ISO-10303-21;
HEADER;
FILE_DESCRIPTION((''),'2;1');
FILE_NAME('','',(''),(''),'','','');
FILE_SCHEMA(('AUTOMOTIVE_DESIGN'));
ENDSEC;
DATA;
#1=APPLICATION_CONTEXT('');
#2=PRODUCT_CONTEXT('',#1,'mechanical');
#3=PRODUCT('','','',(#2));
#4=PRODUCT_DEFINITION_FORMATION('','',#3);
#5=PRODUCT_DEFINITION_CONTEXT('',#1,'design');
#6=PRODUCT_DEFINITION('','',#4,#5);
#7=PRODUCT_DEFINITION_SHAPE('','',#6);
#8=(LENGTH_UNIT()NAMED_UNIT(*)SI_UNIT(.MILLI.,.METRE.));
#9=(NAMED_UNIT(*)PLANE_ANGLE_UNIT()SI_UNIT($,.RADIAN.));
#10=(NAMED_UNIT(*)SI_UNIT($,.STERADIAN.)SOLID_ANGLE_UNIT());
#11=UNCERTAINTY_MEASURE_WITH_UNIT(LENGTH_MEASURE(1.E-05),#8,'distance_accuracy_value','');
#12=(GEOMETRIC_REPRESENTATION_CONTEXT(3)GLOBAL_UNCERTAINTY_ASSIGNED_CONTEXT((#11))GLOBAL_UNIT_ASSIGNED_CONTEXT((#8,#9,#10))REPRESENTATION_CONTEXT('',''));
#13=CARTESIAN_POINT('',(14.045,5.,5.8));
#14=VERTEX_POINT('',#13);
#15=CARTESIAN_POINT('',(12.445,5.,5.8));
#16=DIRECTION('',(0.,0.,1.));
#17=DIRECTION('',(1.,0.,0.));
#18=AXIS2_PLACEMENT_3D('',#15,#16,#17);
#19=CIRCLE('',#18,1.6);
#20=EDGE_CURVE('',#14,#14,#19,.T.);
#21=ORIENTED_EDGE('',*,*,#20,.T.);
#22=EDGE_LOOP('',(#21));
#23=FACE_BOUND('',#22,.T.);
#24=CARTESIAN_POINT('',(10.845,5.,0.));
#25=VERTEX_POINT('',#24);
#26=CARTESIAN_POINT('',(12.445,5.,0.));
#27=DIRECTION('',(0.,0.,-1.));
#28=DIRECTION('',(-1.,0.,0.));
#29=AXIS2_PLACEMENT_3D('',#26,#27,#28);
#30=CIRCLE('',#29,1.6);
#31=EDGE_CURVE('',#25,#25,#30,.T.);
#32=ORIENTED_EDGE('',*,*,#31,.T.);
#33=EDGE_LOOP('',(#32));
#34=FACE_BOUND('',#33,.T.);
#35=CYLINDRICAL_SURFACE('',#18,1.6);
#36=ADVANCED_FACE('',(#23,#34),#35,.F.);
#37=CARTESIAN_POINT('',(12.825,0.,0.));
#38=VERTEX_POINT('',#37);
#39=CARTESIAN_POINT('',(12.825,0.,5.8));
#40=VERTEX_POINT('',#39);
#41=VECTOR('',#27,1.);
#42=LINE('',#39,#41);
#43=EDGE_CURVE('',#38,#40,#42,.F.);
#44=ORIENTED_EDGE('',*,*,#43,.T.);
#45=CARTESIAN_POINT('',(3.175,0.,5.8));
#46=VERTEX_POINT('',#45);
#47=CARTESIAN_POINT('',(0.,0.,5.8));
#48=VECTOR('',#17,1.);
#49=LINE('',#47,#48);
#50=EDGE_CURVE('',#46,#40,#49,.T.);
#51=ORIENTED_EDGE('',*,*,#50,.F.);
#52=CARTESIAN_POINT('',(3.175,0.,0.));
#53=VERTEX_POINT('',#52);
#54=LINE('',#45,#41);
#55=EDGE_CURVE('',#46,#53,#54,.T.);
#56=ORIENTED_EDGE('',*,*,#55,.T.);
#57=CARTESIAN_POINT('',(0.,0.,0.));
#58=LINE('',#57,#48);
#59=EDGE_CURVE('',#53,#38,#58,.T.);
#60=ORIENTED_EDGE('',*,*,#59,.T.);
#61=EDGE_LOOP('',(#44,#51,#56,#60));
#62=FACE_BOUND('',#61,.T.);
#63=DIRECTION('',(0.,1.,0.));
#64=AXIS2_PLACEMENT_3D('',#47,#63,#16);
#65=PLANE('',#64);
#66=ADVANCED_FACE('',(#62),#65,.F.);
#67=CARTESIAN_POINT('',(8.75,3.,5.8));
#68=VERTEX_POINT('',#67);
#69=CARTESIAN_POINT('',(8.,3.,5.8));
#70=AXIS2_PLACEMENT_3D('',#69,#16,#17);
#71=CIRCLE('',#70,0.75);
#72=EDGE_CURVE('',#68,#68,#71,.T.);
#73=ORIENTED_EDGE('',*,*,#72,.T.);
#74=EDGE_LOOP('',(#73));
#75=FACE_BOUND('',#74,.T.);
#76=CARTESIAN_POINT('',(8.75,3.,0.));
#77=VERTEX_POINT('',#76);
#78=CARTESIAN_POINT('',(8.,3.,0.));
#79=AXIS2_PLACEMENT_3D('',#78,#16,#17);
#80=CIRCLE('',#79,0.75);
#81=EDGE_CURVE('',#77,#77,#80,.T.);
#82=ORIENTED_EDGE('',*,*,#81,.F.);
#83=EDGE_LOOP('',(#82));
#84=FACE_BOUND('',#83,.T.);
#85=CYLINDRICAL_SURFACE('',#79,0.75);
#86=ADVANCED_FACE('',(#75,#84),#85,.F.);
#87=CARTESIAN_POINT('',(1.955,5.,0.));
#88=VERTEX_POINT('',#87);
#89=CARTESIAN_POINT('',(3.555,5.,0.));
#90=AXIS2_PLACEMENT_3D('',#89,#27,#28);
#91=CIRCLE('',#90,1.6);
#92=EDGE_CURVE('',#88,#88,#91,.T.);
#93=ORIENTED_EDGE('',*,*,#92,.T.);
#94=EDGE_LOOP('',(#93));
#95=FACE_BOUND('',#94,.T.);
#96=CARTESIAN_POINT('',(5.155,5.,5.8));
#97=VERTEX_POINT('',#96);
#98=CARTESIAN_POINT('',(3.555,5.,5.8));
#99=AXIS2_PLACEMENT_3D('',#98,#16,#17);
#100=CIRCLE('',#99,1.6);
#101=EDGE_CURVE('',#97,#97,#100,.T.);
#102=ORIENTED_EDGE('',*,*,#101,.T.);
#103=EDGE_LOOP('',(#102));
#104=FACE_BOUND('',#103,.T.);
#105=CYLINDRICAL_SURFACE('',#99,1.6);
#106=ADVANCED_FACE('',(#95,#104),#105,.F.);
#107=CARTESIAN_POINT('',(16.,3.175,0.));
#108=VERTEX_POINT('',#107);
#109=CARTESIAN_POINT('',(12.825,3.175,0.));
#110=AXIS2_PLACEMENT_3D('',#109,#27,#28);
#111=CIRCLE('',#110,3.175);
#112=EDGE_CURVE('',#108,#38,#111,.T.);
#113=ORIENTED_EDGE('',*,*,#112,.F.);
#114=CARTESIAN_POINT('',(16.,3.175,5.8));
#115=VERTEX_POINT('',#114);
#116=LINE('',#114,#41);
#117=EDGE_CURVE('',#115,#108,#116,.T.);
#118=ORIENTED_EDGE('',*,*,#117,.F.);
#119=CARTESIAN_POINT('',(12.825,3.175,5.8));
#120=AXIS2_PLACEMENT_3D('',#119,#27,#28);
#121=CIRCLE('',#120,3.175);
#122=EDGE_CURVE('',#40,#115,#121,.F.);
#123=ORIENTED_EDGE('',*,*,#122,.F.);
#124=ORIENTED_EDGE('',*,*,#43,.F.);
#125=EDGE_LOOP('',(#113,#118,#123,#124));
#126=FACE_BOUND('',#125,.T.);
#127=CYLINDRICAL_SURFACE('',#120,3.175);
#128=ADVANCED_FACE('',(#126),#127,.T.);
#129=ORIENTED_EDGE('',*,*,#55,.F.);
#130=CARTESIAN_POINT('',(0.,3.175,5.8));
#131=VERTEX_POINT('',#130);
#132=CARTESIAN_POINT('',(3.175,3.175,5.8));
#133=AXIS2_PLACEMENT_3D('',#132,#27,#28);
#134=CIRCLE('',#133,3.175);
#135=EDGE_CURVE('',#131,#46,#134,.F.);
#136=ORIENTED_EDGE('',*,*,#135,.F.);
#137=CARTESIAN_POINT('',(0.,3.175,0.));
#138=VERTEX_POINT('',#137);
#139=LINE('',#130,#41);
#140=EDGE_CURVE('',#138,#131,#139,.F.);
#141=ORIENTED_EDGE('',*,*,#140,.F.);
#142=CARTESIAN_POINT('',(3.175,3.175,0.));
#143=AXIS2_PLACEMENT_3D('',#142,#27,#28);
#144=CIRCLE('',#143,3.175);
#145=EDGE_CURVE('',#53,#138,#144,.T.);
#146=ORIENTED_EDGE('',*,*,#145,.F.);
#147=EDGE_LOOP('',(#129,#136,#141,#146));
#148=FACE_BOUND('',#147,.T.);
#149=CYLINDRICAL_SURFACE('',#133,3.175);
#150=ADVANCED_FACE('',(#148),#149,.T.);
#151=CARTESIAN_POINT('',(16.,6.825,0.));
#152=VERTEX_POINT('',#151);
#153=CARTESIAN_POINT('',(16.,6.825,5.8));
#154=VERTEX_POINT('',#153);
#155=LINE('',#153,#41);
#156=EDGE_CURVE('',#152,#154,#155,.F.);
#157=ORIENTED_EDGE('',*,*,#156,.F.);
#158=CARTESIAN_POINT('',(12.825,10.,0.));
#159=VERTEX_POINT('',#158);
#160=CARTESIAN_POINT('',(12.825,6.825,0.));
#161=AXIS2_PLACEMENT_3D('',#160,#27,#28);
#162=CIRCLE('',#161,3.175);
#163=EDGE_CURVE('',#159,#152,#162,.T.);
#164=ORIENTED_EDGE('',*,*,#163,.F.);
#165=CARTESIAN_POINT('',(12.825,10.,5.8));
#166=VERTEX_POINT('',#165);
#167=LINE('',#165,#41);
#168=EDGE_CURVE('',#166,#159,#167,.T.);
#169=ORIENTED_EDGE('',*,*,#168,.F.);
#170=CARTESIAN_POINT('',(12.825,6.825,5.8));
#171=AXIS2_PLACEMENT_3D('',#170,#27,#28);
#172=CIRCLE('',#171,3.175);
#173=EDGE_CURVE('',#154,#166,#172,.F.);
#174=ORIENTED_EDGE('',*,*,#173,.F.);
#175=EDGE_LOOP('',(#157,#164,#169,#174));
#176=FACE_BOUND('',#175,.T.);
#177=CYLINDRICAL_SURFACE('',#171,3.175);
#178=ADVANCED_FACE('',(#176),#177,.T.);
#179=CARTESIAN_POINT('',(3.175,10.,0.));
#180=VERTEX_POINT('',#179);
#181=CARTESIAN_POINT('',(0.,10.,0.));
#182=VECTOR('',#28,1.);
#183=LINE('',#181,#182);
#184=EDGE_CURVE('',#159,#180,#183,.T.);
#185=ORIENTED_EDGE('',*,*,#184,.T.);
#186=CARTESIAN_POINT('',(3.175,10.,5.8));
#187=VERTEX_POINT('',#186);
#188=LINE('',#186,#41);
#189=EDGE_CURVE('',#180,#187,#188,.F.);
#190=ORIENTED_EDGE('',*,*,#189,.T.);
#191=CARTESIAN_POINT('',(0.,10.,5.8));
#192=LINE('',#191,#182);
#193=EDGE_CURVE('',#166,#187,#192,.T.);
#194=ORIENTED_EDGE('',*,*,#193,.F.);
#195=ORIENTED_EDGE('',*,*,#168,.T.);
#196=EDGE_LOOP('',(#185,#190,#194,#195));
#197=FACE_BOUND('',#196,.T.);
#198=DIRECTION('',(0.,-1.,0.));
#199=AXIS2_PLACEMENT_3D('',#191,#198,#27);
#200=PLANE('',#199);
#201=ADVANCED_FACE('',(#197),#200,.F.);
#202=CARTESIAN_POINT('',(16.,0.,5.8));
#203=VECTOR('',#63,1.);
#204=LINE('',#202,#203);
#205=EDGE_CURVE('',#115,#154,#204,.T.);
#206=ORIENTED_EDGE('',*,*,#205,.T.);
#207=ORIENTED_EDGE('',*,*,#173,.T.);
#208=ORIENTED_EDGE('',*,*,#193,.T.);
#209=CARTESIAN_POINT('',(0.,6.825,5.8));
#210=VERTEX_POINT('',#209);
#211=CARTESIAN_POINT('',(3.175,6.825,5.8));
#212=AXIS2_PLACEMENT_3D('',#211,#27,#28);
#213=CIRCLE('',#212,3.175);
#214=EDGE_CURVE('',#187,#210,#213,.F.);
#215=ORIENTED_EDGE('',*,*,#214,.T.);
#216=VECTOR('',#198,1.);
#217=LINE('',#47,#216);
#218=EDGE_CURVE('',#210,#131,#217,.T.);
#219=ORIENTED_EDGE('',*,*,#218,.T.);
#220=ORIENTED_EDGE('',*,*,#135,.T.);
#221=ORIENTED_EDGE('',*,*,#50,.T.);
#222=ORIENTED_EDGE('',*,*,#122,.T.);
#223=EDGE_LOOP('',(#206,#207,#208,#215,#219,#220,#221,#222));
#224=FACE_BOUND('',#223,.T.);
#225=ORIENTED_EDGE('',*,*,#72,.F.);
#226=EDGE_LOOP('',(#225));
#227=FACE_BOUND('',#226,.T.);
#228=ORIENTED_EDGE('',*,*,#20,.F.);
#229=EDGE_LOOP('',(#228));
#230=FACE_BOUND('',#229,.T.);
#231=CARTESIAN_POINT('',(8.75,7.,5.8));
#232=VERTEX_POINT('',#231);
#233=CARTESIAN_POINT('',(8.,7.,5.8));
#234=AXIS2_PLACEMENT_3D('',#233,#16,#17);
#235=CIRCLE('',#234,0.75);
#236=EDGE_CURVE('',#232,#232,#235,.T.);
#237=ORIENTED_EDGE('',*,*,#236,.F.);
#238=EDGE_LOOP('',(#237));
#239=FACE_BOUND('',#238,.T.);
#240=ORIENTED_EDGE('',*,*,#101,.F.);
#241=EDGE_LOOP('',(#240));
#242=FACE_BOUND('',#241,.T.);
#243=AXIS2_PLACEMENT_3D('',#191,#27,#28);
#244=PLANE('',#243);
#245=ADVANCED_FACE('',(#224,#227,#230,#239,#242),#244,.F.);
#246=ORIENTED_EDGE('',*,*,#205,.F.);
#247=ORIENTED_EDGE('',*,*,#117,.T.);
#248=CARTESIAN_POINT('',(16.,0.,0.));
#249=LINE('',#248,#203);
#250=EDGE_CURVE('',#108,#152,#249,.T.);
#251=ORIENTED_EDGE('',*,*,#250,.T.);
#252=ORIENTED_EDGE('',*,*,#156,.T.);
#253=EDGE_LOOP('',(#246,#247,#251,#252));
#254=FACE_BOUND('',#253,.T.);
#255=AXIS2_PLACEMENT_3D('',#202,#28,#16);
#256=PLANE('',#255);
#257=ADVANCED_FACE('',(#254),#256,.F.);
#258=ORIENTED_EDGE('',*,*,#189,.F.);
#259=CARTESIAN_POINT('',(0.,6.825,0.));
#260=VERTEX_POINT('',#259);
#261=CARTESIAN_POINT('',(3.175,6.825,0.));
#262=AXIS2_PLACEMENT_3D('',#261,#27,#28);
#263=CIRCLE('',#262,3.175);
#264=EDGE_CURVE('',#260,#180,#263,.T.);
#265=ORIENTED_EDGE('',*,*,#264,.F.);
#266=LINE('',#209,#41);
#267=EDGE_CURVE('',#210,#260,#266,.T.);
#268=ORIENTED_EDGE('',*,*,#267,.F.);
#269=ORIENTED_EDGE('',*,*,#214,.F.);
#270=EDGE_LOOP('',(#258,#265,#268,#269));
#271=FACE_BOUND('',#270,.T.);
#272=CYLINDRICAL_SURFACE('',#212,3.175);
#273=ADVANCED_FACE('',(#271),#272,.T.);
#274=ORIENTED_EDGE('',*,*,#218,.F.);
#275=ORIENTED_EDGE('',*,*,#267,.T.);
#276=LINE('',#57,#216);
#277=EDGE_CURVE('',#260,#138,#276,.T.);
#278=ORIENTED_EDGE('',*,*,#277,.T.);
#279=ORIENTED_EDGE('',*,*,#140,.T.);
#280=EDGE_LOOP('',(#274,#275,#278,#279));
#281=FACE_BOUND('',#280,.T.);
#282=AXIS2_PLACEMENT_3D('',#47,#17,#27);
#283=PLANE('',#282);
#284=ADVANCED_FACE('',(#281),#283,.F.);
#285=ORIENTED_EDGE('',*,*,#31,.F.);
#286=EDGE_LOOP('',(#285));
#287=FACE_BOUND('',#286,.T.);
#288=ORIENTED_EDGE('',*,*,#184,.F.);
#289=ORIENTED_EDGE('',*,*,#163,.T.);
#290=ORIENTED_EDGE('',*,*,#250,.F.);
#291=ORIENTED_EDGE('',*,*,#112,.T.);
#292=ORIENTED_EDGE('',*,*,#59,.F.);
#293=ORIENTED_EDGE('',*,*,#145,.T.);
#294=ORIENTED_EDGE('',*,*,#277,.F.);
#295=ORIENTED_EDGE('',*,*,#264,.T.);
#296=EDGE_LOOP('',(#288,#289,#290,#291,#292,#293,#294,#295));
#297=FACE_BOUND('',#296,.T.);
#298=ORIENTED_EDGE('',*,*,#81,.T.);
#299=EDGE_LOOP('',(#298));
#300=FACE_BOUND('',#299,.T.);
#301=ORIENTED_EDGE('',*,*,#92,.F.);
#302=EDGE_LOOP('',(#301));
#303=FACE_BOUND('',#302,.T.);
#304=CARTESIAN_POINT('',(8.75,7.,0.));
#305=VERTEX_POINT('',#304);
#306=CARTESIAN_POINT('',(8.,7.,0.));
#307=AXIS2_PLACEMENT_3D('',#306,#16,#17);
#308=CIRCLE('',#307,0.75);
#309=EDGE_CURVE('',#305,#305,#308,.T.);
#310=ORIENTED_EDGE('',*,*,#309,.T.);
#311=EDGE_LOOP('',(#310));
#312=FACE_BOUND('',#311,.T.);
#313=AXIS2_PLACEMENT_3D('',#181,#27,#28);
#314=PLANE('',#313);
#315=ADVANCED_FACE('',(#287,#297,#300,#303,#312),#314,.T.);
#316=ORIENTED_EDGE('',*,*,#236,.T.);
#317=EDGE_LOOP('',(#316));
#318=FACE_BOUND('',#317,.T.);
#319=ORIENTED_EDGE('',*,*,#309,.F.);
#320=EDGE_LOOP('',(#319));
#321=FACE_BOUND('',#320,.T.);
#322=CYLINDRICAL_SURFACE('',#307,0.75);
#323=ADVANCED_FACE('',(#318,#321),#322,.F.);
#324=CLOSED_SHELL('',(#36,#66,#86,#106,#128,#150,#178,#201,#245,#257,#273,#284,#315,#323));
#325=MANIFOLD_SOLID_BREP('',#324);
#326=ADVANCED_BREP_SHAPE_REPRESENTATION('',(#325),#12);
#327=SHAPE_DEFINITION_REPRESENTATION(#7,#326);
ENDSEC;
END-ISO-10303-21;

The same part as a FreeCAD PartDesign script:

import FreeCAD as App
import Part
import Sketcher


def edges_at(feature, points):
    """Names of the edges that pass closest to the given points."""
    edges = feature.Shape.Edges
    near = lambda p: min(range(len(edges)), key=lambda i: edges[i].distToShape(Part.Vertex(*p))[0])
    return sorted({f"Edge{near(p) + 1}" for p in points})


def add_polygon(sketch, points):
    """Adds a closed chain of lines whose ends are joined by coincident constraints."""
    first, n = sketch.GeometryCount, len(points)
    for a, b in zip(points, points[1:] + points[:1]):
        sketch.addGeometry(Part.LineSegment(App.Vector(*a, 0), App.Vector(*b, 0)), False)
    for i in range(n):
        sketch.addConstraint(Sketcher.Constraint("Coincident", first + i, 2, first + (i + 1) % n, 1))

doc = App.newDocument("Part")
body = doc.addObject("PartDesign::Body", "Body")

# Sketch on XY plane
sketch1 = doc.addObject("Sketcher::SketchObject", "Sketch")
body.addObject(sketch1)
sketch1.AttachmentSupport = (doc.XY_Plane, [""])
sketch1.MapMode = "FlatFace"
add_polygon(sketch1, [(0, 10), (0, 0), (16, 0), (16, 10)])  # lines 0-3
sketch1.addConstraint([
    Sketcher.Constraint("Vertical", 0),
    Sketcher.Constraint("Horizontal", 1),
    Sketcher.Constraint("Vertical", 2),
    Sketcher.Constraint("Horizontal", 3),
    Sketcher.Constraint("Coincident", 0, 2, -1, 1),
    Sketcher.Constraint("DistanceX", 1, 1, 1, 2, 16.0),
    Sketcher.Constraint("DistanceY", 0, 2, 0, 1, 10.0),
])
pad1 = doc.addObject("PartDesign::Pad", "Pad")
body.addObject(pad1)
pad1.Profile = sketch1
pad1.Length = 5.8

# Sketch on XY plane
sketch2 = doc.addObject("Sketcher::SketchObject", "Sketch001")
body.addObject(sketch2)
sketch2.AttachmentSupport = (doc.XY_Plane, [""])
sketch2.MapMode = "FlatFace"
sketch2.AttachmentOffset = App.Placement(App.Vector(0, 0, 5.8), App.Rotation())
sketch2.addGeometry([
    Part.Circle(App.Vector(8, 7, 0), App.Vector(0, 0, 1), 0.75),
    Part.Circle(App.Vector(8, 3, 0), App.Vector(0, 0, 1), 0.75),
], False)
sketch2.addConstraint([
    Sketcher.Constraint("Equal", 0, 1),
    Sketcher.Constraint("Vertical", 0, 3, 1, 3),
    Sketcher.Constraint("Diameter", 0, 1.5),
    Sketcher.Constraint("DistanceX", -1, 1, 0, 3, 8.0),
    Sketcher.Constraint("DistanceY", -1, 1, 0, 3, 7.0),
    Sketcher.Constraint("DistanceY", -1, 1, 1, 3, 3.0),
])
pocket1 = doc.addObject("PartDesign::Pocket", "Pocket")
body.addObject(pocket1)
pocket1.Profile = sketch2
pocket1.Length = 5.8

# Sketch on XY plane
sketch3 = doc.addObject("Sketcher::SketchObject", "Sketch002")
body.addObject(sketch3)
sketch3.AttachmentSupport = (doc.XY_Plane, [""])
sketch3.MapMode = "FlatFace"
sketch3.AttachmentOffset = App.Placement(App.Vector(0, 0, 5.8), App.Rotation())
sketch3.addGeometry([
    Part.Circle(App.Vector(3.555, 5, 0), App.Vector(0, 0, 1), 1.6),
    Part.Circle(App.Vector(12.445, 5, 0), App.Vector(0, 0, 1), 1.6),
], False)
sketch3.addConstraint([
    Sketcher.Constraint("Equal", 0, 1),
    Sketcher.Constraint("Horizontal", 0, 3, 1, 3),
    Sketcher.Constraint("Diameter", 0, 3.2),
    Sketcher.Constraint("DistanceY", -1, 1, 0, 3, 5.0),
    Sketcher.Constraint("DistanceX", 0, 3, 1, 3, 8.89),
    Sketcher.Constraint("DistanceX", -1, 1, 0, 3, 3.555),
])
doc.recompute()
hole = doc.addObject("PartDesign::Hole", "Hole")
body.addObject(hole)
hole.Profile = sketch3
hole.ThreadType = "None"
hole.Diameter = 3.2
hole.DepthType = "Dimension"
hole.Depth = 36.28
hole.DrillPoint = "Angled"
hole.DrillPointAngle = 118
doc.recompute()

fillet = doc.addObject("PartDesign::Fillet", "Fillet")
body.addObject(fillet)
fillet.Base = (hole, edges_at(hole, [
    (0, 10, 2.9),
    (16, 10, 2.9),
    (16, 0, 2.9),
    (0, 0, 2.9),
]))
fillet.Radius = 3.175

doc.recompute()
